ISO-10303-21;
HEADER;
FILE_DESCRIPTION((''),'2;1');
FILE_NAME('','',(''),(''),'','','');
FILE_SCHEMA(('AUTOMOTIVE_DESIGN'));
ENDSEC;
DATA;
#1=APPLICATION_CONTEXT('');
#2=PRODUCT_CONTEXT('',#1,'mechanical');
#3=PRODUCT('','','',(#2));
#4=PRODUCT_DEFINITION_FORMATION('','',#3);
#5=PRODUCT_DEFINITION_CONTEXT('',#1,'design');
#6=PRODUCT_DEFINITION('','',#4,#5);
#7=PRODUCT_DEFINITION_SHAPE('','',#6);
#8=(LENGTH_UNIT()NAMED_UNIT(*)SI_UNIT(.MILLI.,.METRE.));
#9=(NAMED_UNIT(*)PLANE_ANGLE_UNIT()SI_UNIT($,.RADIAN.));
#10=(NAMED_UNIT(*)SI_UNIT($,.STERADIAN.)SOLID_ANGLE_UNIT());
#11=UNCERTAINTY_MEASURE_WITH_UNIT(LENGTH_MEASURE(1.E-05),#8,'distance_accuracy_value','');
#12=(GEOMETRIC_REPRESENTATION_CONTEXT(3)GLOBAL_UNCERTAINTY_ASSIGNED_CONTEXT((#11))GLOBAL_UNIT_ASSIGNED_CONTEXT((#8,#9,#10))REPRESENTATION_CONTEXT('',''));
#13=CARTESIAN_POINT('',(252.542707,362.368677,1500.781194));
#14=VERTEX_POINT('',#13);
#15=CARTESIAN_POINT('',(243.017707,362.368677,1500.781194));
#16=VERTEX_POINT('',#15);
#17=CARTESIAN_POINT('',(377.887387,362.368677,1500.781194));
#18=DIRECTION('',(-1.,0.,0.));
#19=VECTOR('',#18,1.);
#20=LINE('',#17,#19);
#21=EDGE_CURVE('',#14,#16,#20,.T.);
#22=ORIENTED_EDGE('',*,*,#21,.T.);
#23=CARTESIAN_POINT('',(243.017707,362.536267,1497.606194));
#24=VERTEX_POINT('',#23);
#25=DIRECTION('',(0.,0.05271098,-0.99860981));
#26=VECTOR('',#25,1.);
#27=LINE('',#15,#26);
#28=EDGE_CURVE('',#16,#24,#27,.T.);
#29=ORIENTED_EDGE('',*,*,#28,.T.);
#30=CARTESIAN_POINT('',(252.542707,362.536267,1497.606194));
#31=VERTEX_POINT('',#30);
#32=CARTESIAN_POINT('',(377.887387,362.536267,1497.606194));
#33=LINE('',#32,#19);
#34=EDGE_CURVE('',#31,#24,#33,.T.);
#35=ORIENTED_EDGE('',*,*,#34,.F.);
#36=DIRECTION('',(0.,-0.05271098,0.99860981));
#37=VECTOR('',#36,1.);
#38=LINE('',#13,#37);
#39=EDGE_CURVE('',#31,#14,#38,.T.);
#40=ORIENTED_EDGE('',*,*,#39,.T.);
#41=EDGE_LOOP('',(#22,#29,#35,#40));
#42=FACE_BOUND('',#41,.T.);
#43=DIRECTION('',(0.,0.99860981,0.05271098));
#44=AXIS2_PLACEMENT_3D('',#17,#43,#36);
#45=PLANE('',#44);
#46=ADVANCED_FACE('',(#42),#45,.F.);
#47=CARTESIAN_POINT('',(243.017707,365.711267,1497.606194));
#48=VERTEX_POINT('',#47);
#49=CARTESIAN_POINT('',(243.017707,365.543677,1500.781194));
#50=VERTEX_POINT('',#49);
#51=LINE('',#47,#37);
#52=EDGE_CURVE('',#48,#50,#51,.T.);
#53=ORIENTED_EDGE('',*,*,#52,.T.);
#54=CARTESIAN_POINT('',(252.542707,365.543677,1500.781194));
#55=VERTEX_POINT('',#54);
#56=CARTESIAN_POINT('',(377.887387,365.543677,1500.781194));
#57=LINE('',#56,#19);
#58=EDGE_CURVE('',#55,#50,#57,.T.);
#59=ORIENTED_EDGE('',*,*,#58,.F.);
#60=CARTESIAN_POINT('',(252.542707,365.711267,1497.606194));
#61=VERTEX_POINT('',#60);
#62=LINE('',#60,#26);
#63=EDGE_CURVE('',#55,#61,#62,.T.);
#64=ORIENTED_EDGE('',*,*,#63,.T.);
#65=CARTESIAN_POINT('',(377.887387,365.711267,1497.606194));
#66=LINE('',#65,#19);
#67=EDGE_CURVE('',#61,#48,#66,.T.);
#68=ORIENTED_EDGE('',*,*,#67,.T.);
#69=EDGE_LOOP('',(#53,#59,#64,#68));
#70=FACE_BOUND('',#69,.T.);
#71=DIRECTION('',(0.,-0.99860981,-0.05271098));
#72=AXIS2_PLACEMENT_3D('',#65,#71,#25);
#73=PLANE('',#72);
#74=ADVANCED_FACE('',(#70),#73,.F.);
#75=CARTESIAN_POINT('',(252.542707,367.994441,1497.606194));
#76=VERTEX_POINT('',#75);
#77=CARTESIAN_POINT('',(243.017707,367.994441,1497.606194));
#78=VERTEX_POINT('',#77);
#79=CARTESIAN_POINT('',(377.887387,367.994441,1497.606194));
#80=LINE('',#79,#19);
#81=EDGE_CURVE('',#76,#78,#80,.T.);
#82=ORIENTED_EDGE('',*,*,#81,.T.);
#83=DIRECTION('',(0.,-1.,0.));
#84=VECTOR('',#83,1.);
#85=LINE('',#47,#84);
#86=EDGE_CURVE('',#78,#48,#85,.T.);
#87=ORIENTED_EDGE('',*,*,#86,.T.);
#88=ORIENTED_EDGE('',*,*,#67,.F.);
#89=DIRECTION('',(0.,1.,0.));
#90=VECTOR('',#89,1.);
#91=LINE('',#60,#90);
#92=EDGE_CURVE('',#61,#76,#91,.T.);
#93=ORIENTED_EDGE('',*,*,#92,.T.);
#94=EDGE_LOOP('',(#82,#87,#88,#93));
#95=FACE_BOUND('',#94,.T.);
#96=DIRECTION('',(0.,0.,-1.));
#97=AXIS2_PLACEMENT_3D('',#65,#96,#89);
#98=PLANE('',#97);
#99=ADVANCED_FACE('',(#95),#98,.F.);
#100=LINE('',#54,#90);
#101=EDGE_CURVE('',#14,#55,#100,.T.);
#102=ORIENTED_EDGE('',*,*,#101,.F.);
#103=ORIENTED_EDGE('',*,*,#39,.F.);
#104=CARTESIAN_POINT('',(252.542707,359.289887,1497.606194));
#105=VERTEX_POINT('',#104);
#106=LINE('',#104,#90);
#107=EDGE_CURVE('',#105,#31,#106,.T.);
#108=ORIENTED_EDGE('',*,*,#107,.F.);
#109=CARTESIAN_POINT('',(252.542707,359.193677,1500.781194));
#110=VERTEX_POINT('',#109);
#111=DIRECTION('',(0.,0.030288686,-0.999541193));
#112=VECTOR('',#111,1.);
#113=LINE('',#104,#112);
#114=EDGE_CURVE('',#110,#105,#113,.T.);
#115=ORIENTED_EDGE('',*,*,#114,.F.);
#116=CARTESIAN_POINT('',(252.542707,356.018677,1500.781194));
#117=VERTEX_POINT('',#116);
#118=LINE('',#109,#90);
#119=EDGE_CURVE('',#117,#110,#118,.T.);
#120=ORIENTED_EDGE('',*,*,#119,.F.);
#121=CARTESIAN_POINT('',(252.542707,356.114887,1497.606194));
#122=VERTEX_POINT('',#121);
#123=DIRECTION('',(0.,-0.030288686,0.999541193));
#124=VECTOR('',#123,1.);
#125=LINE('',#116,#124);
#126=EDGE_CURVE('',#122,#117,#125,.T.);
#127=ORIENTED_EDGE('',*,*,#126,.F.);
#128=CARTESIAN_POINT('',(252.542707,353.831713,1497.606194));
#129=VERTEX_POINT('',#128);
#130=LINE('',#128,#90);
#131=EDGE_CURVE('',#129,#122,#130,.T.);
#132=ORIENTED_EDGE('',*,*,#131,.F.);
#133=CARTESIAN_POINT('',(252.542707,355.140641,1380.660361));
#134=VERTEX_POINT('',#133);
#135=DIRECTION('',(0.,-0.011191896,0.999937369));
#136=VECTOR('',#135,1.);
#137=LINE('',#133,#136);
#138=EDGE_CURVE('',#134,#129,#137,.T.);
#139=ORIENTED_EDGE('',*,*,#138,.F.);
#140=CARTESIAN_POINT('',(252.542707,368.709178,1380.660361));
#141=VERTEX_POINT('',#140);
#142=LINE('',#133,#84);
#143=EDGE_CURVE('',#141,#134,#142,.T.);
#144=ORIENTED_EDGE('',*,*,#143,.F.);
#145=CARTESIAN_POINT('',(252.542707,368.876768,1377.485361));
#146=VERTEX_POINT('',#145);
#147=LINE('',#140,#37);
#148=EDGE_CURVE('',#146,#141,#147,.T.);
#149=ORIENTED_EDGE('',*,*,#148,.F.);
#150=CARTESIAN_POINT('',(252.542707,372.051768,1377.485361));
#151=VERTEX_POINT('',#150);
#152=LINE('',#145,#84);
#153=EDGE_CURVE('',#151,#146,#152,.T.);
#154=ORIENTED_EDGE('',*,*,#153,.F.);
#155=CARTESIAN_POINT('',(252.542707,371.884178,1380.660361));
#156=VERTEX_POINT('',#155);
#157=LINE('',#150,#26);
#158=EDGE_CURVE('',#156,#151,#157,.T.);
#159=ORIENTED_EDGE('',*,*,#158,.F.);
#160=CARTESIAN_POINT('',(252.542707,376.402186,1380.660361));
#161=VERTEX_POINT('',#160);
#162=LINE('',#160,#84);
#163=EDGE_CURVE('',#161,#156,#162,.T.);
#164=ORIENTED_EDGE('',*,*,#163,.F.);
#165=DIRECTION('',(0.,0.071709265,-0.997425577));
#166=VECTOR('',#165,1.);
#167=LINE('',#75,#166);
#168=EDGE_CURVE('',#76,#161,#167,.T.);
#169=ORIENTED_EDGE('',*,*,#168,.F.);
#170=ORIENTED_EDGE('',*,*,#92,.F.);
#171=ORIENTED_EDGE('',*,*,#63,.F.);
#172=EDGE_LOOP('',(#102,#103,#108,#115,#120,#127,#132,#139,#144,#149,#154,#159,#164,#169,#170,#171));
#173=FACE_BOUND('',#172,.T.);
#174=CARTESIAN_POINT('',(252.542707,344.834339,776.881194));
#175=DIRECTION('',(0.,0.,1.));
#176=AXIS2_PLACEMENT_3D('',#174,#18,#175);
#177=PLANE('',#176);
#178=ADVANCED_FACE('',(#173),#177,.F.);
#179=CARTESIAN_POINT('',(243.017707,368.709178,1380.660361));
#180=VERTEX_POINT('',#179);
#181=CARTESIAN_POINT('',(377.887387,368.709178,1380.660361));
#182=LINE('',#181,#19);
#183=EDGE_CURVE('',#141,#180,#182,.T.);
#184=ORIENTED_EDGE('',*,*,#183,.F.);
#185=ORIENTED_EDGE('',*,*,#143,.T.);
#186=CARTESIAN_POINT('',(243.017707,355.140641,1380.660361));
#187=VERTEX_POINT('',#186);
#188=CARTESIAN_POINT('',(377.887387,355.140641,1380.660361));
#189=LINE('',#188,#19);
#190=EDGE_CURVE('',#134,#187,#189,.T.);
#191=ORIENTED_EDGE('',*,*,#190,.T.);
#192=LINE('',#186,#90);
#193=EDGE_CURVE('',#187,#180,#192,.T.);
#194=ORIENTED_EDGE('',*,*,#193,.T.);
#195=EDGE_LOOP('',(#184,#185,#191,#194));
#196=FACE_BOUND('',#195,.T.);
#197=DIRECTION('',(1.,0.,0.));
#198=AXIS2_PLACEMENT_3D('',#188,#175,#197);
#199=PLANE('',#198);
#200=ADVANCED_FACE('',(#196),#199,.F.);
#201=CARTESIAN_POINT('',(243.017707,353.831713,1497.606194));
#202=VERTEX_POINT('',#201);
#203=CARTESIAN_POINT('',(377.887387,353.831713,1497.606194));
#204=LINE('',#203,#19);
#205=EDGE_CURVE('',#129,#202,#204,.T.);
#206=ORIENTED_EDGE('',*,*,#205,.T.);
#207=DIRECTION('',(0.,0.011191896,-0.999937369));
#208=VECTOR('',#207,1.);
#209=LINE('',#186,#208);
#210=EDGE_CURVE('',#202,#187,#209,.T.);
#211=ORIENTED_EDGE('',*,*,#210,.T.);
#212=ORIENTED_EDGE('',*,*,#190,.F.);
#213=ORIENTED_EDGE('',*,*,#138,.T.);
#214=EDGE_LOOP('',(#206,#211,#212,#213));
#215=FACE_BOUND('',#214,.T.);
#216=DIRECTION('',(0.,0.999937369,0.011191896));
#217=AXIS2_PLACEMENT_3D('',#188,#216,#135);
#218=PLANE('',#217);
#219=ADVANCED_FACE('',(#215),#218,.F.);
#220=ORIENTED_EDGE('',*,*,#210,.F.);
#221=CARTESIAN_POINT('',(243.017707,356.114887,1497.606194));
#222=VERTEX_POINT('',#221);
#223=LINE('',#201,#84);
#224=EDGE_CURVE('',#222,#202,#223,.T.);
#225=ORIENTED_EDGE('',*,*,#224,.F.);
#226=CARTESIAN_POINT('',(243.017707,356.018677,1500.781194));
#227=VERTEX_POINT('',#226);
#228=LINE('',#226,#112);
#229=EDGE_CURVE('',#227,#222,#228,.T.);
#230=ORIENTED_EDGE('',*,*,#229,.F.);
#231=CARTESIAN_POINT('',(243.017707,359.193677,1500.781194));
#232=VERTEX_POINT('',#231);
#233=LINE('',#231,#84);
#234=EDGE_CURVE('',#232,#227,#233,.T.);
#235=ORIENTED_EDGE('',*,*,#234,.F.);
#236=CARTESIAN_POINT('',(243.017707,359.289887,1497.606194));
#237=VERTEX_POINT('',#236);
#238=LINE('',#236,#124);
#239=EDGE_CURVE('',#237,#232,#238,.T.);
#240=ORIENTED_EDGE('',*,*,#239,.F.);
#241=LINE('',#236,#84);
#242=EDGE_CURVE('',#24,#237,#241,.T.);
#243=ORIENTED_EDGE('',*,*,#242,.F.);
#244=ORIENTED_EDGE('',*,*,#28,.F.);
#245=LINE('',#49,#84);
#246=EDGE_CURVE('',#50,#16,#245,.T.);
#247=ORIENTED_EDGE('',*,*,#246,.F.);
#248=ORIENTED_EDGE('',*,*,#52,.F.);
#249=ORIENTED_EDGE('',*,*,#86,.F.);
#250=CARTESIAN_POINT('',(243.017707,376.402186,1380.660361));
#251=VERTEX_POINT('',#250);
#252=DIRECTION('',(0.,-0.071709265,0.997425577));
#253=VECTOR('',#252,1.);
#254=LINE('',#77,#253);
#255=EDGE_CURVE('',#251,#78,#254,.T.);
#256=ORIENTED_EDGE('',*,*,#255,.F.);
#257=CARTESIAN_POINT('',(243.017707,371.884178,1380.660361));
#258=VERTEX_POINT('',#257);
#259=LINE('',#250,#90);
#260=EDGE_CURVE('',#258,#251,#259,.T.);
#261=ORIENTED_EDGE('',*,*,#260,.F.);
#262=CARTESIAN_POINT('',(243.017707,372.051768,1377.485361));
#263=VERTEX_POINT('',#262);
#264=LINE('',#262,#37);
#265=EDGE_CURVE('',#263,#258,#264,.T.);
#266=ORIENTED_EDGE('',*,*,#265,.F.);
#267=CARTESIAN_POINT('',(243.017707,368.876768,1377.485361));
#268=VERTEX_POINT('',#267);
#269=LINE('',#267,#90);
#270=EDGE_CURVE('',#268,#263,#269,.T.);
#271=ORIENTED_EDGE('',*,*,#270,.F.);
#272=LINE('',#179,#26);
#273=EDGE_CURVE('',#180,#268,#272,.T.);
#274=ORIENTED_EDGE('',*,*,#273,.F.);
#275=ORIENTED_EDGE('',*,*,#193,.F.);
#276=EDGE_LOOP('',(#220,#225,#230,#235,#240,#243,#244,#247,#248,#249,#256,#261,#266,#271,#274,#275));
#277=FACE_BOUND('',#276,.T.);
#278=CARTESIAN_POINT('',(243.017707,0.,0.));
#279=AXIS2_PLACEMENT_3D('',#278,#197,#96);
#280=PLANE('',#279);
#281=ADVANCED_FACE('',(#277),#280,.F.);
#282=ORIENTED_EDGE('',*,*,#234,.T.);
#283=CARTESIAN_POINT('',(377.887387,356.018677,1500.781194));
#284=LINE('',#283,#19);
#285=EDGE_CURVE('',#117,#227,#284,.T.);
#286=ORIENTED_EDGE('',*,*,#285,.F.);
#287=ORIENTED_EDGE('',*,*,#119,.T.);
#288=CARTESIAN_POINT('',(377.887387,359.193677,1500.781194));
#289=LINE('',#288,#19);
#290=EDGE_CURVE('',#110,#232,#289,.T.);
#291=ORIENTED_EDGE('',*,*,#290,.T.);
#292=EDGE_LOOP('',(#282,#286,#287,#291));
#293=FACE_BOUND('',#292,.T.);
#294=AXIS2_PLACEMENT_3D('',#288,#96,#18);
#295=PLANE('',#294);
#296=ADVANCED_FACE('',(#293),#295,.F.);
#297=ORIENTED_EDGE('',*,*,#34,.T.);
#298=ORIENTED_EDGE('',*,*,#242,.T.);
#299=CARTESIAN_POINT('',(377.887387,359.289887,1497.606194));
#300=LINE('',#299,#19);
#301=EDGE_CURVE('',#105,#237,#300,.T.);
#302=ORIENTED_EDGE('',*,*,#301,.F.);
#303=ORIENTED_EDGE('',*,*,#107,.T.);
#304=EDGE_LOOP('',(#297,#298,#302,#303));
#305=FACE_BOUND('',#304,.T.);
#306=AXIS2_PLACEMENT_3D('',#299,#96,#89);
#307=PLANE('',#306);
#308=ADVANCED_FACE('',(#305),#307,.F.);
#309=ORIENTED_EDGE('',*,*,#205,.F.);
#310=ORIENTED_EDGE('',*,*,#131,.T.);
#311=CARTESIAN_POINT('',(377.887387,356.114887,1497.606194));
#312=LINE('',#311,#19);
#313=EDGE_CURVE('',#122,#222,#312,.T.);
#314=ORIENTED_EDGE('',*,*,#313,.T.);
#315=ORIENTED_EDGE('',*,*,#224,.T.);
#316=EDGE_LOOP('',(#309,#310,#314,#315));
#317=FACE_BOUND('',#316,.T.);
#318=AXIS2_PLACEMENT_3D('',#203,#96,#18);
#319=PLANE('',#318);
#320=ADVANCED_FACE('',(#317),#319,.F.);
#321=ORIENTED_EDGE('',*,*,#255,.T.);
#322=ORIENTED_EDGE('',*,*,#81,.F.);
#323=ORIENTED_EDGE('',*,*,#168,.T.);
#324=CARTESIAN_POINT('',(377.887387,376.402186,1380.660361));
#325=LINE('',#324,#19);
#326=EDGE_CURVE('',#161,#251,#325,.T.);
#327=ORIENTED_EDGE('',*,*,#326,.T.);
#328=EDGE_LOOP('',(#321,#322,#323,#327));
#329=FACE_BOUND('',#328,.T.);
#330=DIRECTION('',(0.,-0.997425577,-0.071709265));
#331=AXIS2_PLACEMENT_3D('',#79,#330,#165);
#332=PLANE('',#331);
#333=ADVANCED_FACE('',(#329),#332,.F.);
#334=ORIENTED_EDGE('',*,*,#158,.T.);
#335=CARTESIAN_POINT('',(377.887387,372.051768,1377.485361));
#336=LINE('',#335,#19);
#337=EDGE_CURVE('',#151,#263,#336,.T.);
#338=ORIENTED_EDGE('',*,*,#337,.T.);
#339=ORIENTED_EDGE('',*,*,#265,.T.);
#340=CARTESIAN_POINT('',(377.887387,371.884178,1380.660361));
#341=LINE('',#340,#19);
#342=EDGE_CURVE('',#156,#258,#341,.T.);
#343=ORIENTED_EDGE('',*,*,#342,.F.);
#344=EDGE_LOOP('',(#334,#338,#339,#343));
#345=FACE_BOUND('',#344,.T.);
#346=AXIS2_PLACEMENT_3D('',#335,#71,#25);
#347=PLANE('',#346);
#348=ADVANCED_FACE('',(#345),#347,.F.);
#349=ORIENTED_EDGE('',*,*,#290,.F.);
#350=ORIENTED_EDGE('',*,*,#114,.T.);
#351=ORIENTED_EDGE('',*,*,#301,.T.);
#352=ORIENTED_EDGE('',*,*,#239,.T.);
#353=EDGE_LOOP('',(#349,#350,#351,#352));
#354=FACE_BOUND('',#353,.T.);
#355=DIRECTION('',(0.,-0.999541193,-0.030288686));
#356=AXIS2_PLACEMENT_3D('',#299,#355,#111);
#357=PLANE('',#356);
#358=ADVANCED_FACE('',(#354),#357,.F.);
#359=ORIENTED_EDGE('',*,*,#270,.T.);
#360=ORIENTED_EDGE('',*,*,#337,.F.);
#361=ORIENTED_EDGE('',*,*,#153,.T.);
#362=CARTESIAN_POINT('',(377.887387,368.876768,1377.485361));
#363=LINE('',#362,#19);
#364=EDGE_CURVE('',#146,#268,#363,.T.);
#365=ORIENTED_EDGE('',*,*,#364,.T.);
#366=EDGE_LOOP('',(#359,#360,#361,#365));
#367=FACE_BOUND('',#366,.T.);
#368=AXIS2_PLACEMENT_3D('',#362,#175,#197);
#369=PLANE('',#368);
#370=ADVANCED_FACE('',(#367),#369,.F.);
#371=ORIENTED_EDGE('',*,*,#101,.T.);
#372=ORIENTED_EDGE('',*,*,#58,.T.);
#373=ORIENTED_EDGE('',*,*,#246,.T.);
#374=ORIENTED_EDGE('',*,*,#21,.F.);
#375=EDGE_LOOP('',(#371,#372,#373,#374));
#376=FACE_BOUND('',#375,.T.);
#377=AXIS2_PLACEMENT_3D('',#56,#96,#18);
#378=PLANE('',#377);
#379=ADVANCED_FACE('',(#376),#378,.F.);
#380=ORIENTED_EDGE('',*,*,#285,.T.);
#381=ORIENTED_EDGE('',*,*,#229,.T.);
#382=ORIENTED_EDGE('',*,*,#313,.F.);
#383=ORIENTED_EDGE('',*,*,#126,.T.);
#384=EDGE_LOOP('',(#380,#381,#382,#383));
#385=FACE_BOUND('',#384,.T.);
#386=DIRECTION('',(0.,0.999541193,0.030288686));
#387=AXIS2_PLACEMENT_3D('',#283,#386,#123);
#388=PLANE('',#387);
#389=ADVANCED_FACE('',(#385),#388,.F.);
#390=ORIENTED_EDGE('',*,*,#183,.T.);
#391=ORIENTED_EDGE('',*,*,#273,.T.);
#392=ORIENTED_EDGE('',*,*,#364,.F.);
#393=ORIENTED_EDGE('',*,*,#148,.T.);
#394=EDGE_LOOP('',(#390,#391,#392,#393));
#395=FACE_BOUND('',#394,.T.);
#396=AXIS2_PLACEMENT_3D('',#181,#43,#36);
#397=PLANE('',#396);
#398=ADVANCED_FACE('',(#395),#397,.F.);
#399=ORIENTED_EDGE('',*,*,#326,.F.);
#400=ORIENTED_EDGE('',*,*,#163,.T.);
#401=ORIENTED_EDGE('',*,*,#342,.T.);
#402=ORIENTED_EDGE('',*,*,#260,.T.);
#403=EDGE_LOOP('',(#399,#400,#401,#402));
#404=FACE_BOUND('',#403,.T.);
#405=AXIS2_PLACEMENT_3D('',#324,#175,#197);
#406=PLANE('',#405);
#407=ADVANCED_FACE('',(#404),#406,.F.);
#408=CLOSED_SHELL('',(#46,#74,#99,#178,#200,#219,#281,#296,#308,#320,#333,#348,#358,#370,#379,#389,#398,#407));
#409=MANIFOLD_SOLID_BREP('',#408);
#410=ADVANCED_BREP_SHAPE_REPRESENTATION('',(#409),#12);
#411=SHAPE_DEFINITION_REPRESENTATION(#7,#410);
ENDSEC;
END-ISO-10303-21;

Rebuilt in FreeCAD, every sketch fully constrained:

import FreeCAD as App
import Part
import Sketcher
from FreeCAD import Vector
Q = App.Units.Quantity

doc = App.newDocument("Part")
params = doc.addObject("Spreadsheet::Sheet", "Params")
for row, (alias, value) in enumerate([
    ("sketch1_width", "0.125 in"),
    ("sketch1_width2", "0.125 in"),
    ("sketch1_width3", "0.125 in"),
    ("pad1_length", "0.375 in"),
], start=1):
    params.set(f"A{row}", alias)
    params.set(f"B{row}", "=" + value)
    params.setAlias(f"B{row}", alias)

body = doc.addObject("PartDesign::Body", "Body")

sketch1 = doc.addObject("Sketcher::SketchObject", "Sketch")
body.addObject(sketch1)
sketch1.AttachmentSupport = (doc.YZ_Plane, [""])
sketch1.MapMode = "FlatFace"
sketch1.AttachmentOffset = App.Placement(Vector(0, 0, 243.017707), App.Rotation())
sketch1.addGeometry([
    Part.LineSegment(Vector(359.289887, 1497.606194, 0), Vector(359.193677, 1500.781194, 0)),
    Part.LineSegment(Vector(359.193677, 1500.781194, 0), Vector(356.018677, 1500.781194, 0)),
    Part.LineSegment(Vector(356.018677, 1500.781194, 0), Vector(356.114887, 1497.606194, 0)),
    Part.LineSegment(Vector(356.114887, 1497.606194, 0), Vector(353.831713, 1497.606194, 0)),
    Part.LineSegment(Vector(353.831713, 1497.606194, 0), Vector(355.140641, 1380.660361, 0)),
    Part.LineSegment(Vector(355.140641, 1380.660361, 0), Vector(368.709178, 1380.660361, 0)),
    Part.LineSegment(Vector(368.709178, 1380.660361, 0), Vector(368.876768, 1377.485361, 0)),
    Part.LineSegment(Vector(368.876768, 1377.485361, 0), Vector(372.051768, 1377.485361, 0)),
    Part.LineSegment(Vector(372.051768, 1377.485361, 0), Vector(371.884178, 1380.660361, 0)),
    Part.LineSegment(Vector(371.884178, 1380.660361, 0), Vector(376.402186, 1380.660361, 0)),
    Part.LineSegment(Vector(376.402186, 1380.660361, 0), Vector(367.994441, 1497.606194, 0)),
    Part.LineSegment(Vector(367.994441, 1497.606194, 0), Vector(365.711267, 1497.606194, 0)),
    Part.LineSegment(Vector(365.711267, 1497.606194, 0), Vector(365.543677, 1500.781194, 0)),
    Part.LineSegment(Vector(365.543677, 1500.781194, 0), Vector(362.368677, 1500.781194, 0)),
    Part.LineSegment(Vector(362.368677, 1500.781194, 0), Vector(362.536267, 1497.606194, 0)),
    Part.LineSegment(Vector(362.536267, 1497.606194, 0), Vector(359.289887, 1497.606194, 0)),
], False)
sketch1.addConstraint([
    Sketcher.Constraint("Coincident", 0, 2, 1, 1),
    Sketcher.Constraint("Coincident", 1, 2, 2, 1),
    Sketcher.Constraint("Coincident", 2, 2, 3, 1),
    Sketcher.Constraint("Coincident", 3, 2, 4, 1),
    Sketcher.Constraint("Coincident", 4, 2, 5, 1),
    Sketcher.Constraint("Coincident", 5, 2, 6, 1),
    Sketcher.Constraint("Coincident", 6, 2, 7, 1),
    Sketcher.Constraint("Coincident", 7, 2, 8, 1),
    Sketcher.Constraint("Coincident", 8, 2, 9, 1),
    Sketcher.Constraint("Coincident", 9, 2, 10, 1),
    Sketcher.Constraint("Coincident", 10, 2, 11, 1),
    Sketcher.Constraint("Coincident", 11, 2, 12, 1),
    Sketcher.Constraint("Coincident", 12, 2, 13, 1),
    Sketcher.Constraint("Coincident", 13, 2, 14, 1),
    Sketcher.Constraint("Coincident", 14, 2, 15, 1),
    Sketcher.Constraint("Coincident", 15, 2, 0, 1),
    Sketcher.Constraint("Horizontal", 1),
    Sketcher.Constraint("Horizontal", 3),
    Sketcher.Constraint("Horizontal", 5),
    Sketcher.Constraint("Horizontal", 7),
    Sketcher.Constraint("Horizontal", 9),
    Sketcher.Constraint("Horizontal", 11),
    Sketcher.Constraint("Horizontal", 13),
    Sketcher.Constraint("Horizontal", 15),
    Sketcher.Constraint("DistanceX", 1, 2, 1, 1, Q("0.125 in")),
    Sketcher.Constraint("DistanceX", 7, 1, 7, 2, Q("0.125 in")),
    Sketcher.Constraint("DistanceX", 13, 2, 13, 1, Q("0.125 in")),
    Sketcher.Constraint("DistanceX", 0, 2, 12, 2, Q("0.25 in")),
    Sketcher.Constraint("DistanceY", 2, 2, 1, 2, Q("0.125 in")),
    Sketcher.Constraint("DistanceY", 6, 2, 5, 2, Q("0.125 in")),
    Sketcher.Constraint("DistanceX", 5, 2, 8, 2, Q("0.125 in")),
    Sketcher.Constraint("DistanceY", 7, 2, 8, 2, Q("0.125 in")),
    Sketcher.Constraint("DistanceY", 10, 2, 0, 2, Q("0.125 in")),
    Sketcher.Constraint("DistanceY", 11, 2, 12, 2, Q("0.125 in")),
    Sketcher.Constraint("DistanceX", 14, 2, 11, 2, Q("0.125 in")),
    Sketcher.Constraint("DistanceY", 14, 2, 13, 2, Q("0.125 in")),
    Sketcher.Constraint("DistanceX", 2, 2, 15, 2, Q("0.125 in")),
    Sketcher.Constraint("DistanceX", 9, 1, 9, 2, 4.518008),
    Sketcher.Constraint("DistanceX", 15, 2, 15, 1, 3.24638),
    Sketcher.Constraint("DistanceX", 0, 2, 5, 2, 9.515501),
    Sketcher.Constraint("Distance", 4, 116.953158),
    Sketcher.Constraint("Distance", 6, 3.17942),
    Sketcher.Constraint("Distance", 10, 117.247679),
    Sketcher.Constraint("Distance", 12, 3.17942),
    Sketcher.Constraint("DistanceX", 3, 2, 3, 1, 2.283174),
    Sketcher.Constraint("DistanceX", 5, 1, 5, 2, 13.568537),
    Sketcher.Constraint("DistanceX", -1, 1, 4, 2, 355.140641),
    Sketcher.Constraint("DistanceY", -1, 1, 4, 2, 1380.660361),
])
sketch1.setExpression("Constraints[24]", "Params.sketch1_width")
sketch1.setExpression("Constraints[25]", "Params.sketch1_width2")
sketch1.setExpression("Constraints[26]", "Params.sketch1_width3")
pad1 = doc.addObject("PartDesign::Pad", "Pad")
body.addObject(pad1)
pad1.Profile = sketch1
pad1.setExpression("Length", "Params.pad1_length")

doc.recompute()
